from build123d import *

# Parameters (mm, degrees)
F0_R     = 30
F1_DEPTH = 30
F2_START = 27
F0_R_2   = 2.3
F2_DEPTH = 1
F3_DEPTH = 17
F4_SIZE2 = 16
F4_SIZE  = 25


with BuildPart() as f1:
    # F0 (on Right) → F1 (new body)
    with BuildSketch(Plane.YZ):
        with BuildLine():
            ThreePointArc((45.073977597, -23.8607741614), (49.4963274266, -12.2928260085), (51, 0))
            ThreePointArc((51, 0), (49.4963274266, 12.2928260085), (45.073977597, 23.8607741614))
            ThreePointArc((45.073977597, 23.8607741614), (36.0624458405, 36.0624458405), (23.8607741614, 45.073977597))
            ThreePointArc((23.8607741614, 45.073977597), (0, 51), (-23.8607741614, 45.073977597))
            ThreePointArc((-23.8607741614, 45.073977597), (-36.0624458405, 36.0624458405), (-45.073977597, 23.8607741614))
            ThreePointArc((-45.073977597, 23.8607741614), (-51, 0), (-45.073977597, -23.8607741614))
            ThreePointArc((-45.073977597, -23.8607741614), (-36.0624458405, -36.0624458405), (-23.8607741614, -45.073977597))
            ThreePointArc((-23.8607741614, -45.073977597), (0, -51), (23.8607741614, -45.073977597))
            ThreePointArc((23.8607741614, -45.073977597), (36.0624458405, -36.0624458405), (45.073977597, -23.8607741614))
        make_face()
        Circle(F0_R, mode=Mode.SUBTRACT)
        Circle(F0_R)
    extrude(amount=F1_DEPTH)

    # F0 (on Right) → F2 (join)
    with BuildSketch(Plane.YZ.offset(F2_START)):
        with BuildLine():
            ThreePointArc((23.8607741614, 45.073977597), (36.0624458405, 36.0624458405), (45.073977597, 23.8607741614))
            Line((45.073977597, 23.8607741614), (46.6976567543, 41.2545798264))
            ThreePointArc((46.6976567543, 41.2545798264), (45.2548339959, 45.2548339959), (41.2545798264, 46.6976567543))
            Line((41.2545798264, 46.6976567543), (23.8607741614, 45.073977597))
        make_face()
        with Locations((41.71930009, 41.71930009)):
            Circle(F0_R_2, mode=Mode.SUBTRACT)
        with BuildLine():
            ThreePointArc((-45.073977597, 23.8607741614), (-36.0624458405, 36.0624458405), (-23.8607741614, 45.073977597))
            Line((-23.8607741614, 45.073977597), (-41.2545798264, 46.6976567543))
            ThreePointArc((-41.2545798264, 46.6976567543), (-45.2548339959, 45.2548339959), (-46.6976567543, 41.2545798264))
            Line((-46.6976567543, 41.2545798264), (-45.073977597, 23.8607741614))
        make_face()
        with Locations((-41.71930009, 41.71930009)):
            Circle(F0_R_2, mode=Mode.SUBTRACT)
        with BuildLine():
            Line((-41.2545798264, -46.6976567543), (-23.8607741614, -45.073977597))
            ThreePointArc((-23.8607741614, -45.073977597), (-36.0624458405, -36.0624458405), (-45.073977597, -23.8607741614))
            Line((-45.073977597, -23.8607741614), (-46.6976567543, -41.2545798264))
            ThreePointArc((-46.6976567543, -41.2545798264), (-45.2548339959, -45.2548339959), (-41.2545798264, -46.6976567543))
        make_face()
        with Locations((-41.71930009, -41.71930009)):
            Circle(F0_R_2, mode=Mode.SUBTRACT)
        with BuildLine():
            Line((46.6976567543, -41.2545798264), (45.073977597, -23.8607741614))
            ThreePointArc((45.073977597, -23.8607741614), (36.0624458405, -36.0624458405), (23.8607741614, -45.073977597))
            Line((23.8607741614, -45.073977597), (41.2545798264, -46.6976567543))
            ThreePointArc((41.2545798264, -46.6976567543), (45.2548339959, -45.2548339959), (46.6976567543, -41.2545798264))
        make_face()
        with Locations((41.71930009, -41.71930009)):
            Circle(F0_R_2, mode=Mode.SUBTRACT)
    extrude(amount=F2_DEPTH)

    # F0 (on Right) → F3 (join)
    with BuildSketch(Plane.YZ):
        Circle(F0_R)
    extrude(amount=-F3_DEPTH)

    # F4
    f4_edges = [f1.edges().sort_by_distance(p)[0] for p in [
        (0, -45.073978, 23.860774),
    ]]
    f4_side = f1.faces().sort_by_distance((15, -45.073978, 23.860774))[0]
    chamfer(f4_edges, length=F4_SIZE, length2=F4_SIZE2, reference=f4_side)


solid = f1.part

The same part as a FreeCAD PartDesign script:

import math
import FreeCAD as App
import Part
import Sketcher
from FreeCAD import Vector


def edges_at(feature, points):
    """Names of the edges that pass closest to the given points."""
    edges = feature.Shape.Edges
    near = lambda p: min(range(len(edges)), key=lambda i: edges[i].distToShape(Part.Vertex(*p))[0])
    return sorted({f"Edge{near(p) + 1}" for p in points})

doc = App.newDocument("Part")
body = doc.addObject("PartDesign::Body", "Body")

# Sketch on YZ plane
sketch1 = body.newObject("Sketcher::SketchObject", "Sketch")
sketch1.AttachmentSupport = (doc.getObject("YZ_Plane"), [""])
sketch1.MapMode = "FlatFace"
sketch1.addGeometry(Part.ArcOfCircle(Part.Circle(Vector(0, 0, 0), Vector(0, 0, 1), 51), math.radians(-28), math.radians(0)), False)
sketch1.addGeometry(Part.ArcOfCircle(Part.Circle(Vector(0, 0, 0), Vector(0, 0, 1), 51), math.radians(0), math.radians(28)), False)
sketch1.addGeometry(Part.ArcOfCircle(Part.Circle(Vector(0, 0, 0), Vector(0, 0, 1), 51), math.radians(28), math.radians(62)), False)
sketch1.addGeometry(Part.ArcOfCircle(Part.Circle(Vector(0, 0, 0), Vector(0, 0, 1), 51), math.radians(62), math.radians(118)), False)
sketch1.addGeometry(Part.ArcOfCircle(Part.Circle(Vector(0, 0, 0), Vector(0, 0, 1), 51), math.radians(118), math.radians(152)), False)
sketch1.addGeometry(Part.ArcOfCircle(Part.Circle(Vector(0, 0, 0), Vector(0, 0, 1), 51), math.radians(152), math.radians(208)), False)
sketch1.addGeometry(Part.ArcOfCircle(Part.Circle(Vector(0, 0, 0), Vector(0, 0, 1), 51), math.radians(-152), math.radians(-118)), False)
sketch1.addGeometry(Part.ArcOfCircle(Part.Circle(Vector(0, 0, 0), Vector(0, 0, 1), 51), math.radians(-118), math.radians(-62)), False)
sketch1.addGeometry(Part.ArcOfCircle(Part.Circle(Vector(0, 0, 0), Vector(0, 0, 1), 51), math.radians(-62), math.radians(-28)), False)
sketch1.addConstraint(Sketcher.Constraint("Tangent", 0, 2, 1, 1))
sketch1.addConstraint(Sketcher.Constraint("Tangent", 1, 2, 2, 1))
sketch1.addConstraint(Sketcher.Constraint("Tangent", 2, 2, 3, 1))
sketch1.addConstraint(Sketcher.Constraint("Tangent", 3, 2, 4, 1))
sketch1.addConstraint(Sketcher.Constraint("Tangent", 4, 2, 5, 1))
sketch1.addConstraint(Sketcher.Constraint("Tangent", 5, 2, 6, 1))
sketch1.addConstraint(Sketcher.Constraint("Tangent", 6, 2, 7, 1))
sketch1.addConstraint(Sketcher.Constraint("Tangent", 7, 2, 8, 1))
sketch1.addConstraint(Sketcher.Constraint("Tangent", 8, 2, 0, 1))
sketch1.addConstraint(Sketcher.Constraint("Coincident", 0, 3, -1, 1))
sketch1.addConstraint(Sketcher.Constraint("Coincident", 2, 3, -1, 1))
sketch1.addConstraint(Sketcher.Constraint("Coincident", 4, 3, -1, 1))
sketch1.addConstraint(Sketcher.Constraint("Coincident", 6, 3, -1, 1))
sketch1.addConstraint(Sketcher.Constraint("PointOnObject", 0, 2, -1))
sketch1.addConstraint(Sketcher.Constraint("Horizontal", 2, 2, 3, 2))
sketch1.addConstraint(Sketcher.Constraint("Horizontal", 1, 2, 4, 2))
sketch1.addConstraint(Sketcher.Constraint("Horizontal", 6, 2, 7, 2))
sketch1.addConstraint(Sketcher.Constraint("Horizontal", 5, 2, 8, 2))
sketch1.addConstraint(Sketcher.Constraint("Vertical", 4, 2, 5, 2))
sketch1.addConstraint(Sketcher.Constraint("Vertical", 3, 2, 6, 2))
sketch1.addConstraint(Sketcher.Constraint("Radius", 0, 51.0))
sketch1.addConstraint(Sketcher.Constraint("DistanceX", 3, 2, 2, 2, 47.721548))
sketch1.addConstraint(Sketcher.Constraint("DistanceY", 5, 2, 4, 2, 47.721548))
pad1 = body.newObject("PartDesign::Pad", "Pad")
pad1.Profile = sketch1
pad1.Length = 30

# Sketch on YZ plane
sketch2 = body.newObject("Sketcher::SketchObject", "Sketch001")
sketch2.AttachmentSupport = (doc.getObject("YZ_Plane"), [""])
sketch2.MapMode = "FlatFace"
sketch2.AttachmentOffset = App.Placement(Vector(0, 0, 27), App.Rotation())
sketch2.addGeometry(Part.ArcOfCircle(Part.Circle(Vector(0, 0, 0), Vector(0, 0, 1), 51), math.radians(28), math.radians(62)), False)
sketch2.addGeometry(Part.LineSegment(Vector(45.1, 23.9, 0), Vector(46.7, 41.3, 0)), False)
sketch2.addGeometry(Part.ArcOfCircle(Part.Circle(Vector(41.7, 41.7, 0), Vector(0, 0, 1), 5), math.radians(-5), math.radians(95)), False)
sketch2.addGeometry(Part.LineSegment(Vector(41.3, 46.7, 0), Vector(23.9, 45.1, 0)), False)
sketch2.addGeometry(Part.Circle(Vector(41.7, 41.7, 0), Vector(0, 0, 1), 2.3), False)
sketch2.addGeometry(Part.ArcOfCircle(Part.Circle(Vector(0, 0, 0), Vector(0, 0, 1), 51), math.radians(118), math.radians(152)), False)
sketch2.addGeometry(Part.LineSegment(Vector(-23.9, 45.1, 0), Vector(-41.3, 46.7, 0)), False)
sketch2.addGeometry(Part.ArcOfCircle(Part.Circle(Vector(-41.7, 41.7, 0), Vector(0, 0, 1), 5), math.radians(85), math.radians(185)), False)
sketch2.addGeometry(Part.LineSegment(Vector(-46.7, 41.3, 0), Vector(-45.1, 23.9, 0)), False)
sketch2.addGeometry(Part.Circle(Vector(-41.7, 41.7, 0), Vector(0, 0, 1), 2.3), False)
sketch2.addGeometry(Part.LineSegment(Vector(-41.3, -46.7, 0), Vector(-23.9, -45.1, 0)), False)
sketch2.addGeometry(Part.ArcOfCircle(Part.Circle(Vector(0, 0, 0), Vector(0, 0, 1), 51), math.radians(-152), math.radians(-118)), False)
sketch2.addGeometry(Part.LineSegment(Vector(-45.1, -23.9, 0), Vector(-46.7, -41.3, 0)), False)
sketch2.addGeometry(Part.ArcOfCircle(Part.Circle(Vector(-41.7, -41.7, 0), Vector(0, 0, 1), 5), math.radians(175), math.radians(275)), False)
sketch2.addGeometry(Part.Circle(Vector(-41.7, -41.7, 0), Vector(0, 0, 1), 2.3), False)
sketch2.addGeometry(Part.LineSegment(Vector(46.7, -41.3, 0), Vector(45.1, -23.9, 0)), False)
sketch2.addGeometry(Part.ArcOfCircle(Part.Circle(Vector(0, 0, 0), Vector(0, 0, 1), 51), math.radians(-62), math.radians(-28)), False)
sketch2.addGeometry(Part.LineSegment(Vector(23.9, -45.1, 0), Vector(41.3, -46.7, 0)), False)
sketch2.addGeometry(Part.ArcOfCircle(Part.Circle(Vector(41.7, -41.7, 0), Vector(0, 0, 1), 5), math.radians(-95), math.radians(5)), False)
sketch2.addGeometry(Part.Circle(Vector(41.7, -41.7, 0), Vector(0, 0, 1), 2.3), False)
sketch2.addConstraint(Sketcher.Constraint("Coincident", 0, 1, 1, 1))
sketch2.addConstraint(Sketcher.Constraint("Tangent", 1, 2, 2, 1))
sketch2.addConstraint(Sketcher.Constraint("Tangent", 2, 2, 3, 1))
sketch2.addConstraint(Sketcher.Constraint("Coincident", 3, 2, 0, 2))
sketch2.addConstraint(Sketcher.Constraint("Coincident", 5, 1, 6, 1))
sketch2.addConstraint(Sketcher.Constraint("Tangent", 6, 2, 7, 1))
sketch2.addConstraint(Sketcher.Constraint("Tangent", 7, 2, 8, 1))
sketch2.addConstraint(Sketcher.Constraint("Coincident", 8, 2, 5, 2))
sketch2.addConstraint(Sketcher.Constraint("Coincident", 10, 2, 11, 2))
sketch2.addConstraint(Sketcher.Constraint("Coincident", 11, 1, 12, 1))
sketch2.addConstraint(Sketcher.Constraint("Tangent", 12, 2, 13, 1))
sketch2.addConstraint(Sketcher.Constraint("Tangent", 13, 2, 10, 1))
sketch2.addConstraint(Sketcher.Constraint("Coincident", 15, 2, 16, 2))
sketch2.addConstraint(Sketcher.Constraint("Coincident", 16, 1, 17, 1))
sketch2.addConstraint(Sketcher.Constraint("Tangent", 17, 2, 18, 1))
sketch2.addConstraint(Sketcher.Constraint("Tangent", 18, 2, 15, 1))
sketch2.addConstraint(Sketcher.Constraint("Coincident", 0, 3, -1, 1))
sketch2.addConstraint(Sketcher.Constraint("Coincident", 5, 3, -1, 1))
sketch2.addConstraint(Sketcher.Constraint("Coincident", 11, 3, -1, 1))
sketch2.addConstraint(Sketcher.Constraint("Coincident", 16, 3, -1, 1))
sketch2.addConstraint(Sketcher.Constraint("Coincident", 4, 3, 2, 3))
sketch2.addConstraint(Sketcher.Constraint("Coincident", 9, 3, 7, 3))
sketch2.addConstraint(Sketcher.Constraint("Coincident", 14, 3, 13, 3))
sketch2.addConstraint(Sketcher.Constraint("Coincident", 19, 3, 18, 3))
sketch2.addConstraint(Sketcher.Constraint("Equal", 0, 5))
sketch2.addConstraint(Sketcher.Constraint("Equal", 2, 7))
sketch2.addConstraint(Sketcher.Constraint("Equal", 4, 9))
sketch2.addConstraint(Sketcher.Constraint("Equal", 5, 11))
sketch2.addConstraint(Sketcher.Constraint("Equal", 7, 13))
sketch2.addConstraint(Sketcher.Constraint("Equal", 9, 14))
sketch2.addConstraint(Sketcher.Constraint("Equal", 11, 16))
sketch2.addConstraint(Sketcher.Constraint("Equal", 13, 18))
sketch2.addConstraint(Sketcher.Constraint("Equal", 14, 19))
sketch2.addConstraint(Sketcher.Constraint("Symmetric", 2, 3, 13, 3, -1, 1))
sketch2.addConstraint(Sketcher.Constraint("Symmetric", 7, 3, 18, 3, -1, 1))
sketch2.addConstraint(Sketcher.Constraint("Symmetric", 2, 3, 7, 3, -2))
sketch2.addConstraint(Sketcher.Constraint("Perpendicular", 1, 6))
sketch2.addConstraint(Sketcher.Constraint("Perpendicular", 3, 8))
sketch2.addConstraint(Sketcher.Constraint("Perpendicular", 8, 10))
sketch2.addConstraint(Sketcher.Constraint("Perpendicular", 6, 12))
sketch2.addConstraint(Sketcher.Constraint("Perpendicular", 10, 15))
sketch2.addConstraint(Sketcher.Constraint("Perpendicular", 12, 17))
sketch2.addConstraint(Sketcher.Constraint("Horizontal", 3, 2, 5, 1))
sketch2.addConstraint(Sketcher.Constraint("Equal", 1, 3))
sketch2.addConstraint(Sketcher.Constraint("Radius", 0, 51.0))
sketch2.addConstraint(Sketcher.Constraint("Radius", 2, 5.0))
sketch2.addConstraint(Sketcher.Constraint("Diameter", 4, 4.6))
sketch2.addConstraint(Sketcher.Constraint("DistanceX", -1, 1, 2, 3, 41.7193))
sketch2.addConstraint(Sketcher.Constraint("DistanceY", -1, 1, 1, 2, 41.25458))
pad2 = body.newObject("PartDesign::Pad", "Pad001")
pad2.Profile = sketch2
pad2.Length = 1

# Sketch on YZ plane
sketch3 = body.newObject("Sketcher::SketchObject", "Sketch002")
sketch3.AttachmentSupport = (doc.getObject("YZ_Plane"), [""])
sketch3.MapMode = "FlatFace"
sketch3.addGeometry(Part.Circle(Vector(0, 0, 0), Vector(0, 0, 1), 30), False)
sketch3.addConstraint(Sketcher.Constraint("Coincident", 0, 3, -1, 1))
sketch3.addConstraint(Sketcher.Constraint("Diameter", 0, 60.0))
pad3 = body.newObject("PartDesign::Pad", "Pad002")
pad3.Profile = sketch3
pad3.Length = 17
pad3.Reversed = True
doc.recompute()

chamfer = body.newObject("PartDesign::Chamfer", "Chamfer")
chamfer.Base = (pad3, edges_at(pad3, [(0, -51, 0)]))
chamfer.ChamferType = "Two distances"
chamfer.Size = 25
chamfer.Size2 = 16

doc.recompute()
